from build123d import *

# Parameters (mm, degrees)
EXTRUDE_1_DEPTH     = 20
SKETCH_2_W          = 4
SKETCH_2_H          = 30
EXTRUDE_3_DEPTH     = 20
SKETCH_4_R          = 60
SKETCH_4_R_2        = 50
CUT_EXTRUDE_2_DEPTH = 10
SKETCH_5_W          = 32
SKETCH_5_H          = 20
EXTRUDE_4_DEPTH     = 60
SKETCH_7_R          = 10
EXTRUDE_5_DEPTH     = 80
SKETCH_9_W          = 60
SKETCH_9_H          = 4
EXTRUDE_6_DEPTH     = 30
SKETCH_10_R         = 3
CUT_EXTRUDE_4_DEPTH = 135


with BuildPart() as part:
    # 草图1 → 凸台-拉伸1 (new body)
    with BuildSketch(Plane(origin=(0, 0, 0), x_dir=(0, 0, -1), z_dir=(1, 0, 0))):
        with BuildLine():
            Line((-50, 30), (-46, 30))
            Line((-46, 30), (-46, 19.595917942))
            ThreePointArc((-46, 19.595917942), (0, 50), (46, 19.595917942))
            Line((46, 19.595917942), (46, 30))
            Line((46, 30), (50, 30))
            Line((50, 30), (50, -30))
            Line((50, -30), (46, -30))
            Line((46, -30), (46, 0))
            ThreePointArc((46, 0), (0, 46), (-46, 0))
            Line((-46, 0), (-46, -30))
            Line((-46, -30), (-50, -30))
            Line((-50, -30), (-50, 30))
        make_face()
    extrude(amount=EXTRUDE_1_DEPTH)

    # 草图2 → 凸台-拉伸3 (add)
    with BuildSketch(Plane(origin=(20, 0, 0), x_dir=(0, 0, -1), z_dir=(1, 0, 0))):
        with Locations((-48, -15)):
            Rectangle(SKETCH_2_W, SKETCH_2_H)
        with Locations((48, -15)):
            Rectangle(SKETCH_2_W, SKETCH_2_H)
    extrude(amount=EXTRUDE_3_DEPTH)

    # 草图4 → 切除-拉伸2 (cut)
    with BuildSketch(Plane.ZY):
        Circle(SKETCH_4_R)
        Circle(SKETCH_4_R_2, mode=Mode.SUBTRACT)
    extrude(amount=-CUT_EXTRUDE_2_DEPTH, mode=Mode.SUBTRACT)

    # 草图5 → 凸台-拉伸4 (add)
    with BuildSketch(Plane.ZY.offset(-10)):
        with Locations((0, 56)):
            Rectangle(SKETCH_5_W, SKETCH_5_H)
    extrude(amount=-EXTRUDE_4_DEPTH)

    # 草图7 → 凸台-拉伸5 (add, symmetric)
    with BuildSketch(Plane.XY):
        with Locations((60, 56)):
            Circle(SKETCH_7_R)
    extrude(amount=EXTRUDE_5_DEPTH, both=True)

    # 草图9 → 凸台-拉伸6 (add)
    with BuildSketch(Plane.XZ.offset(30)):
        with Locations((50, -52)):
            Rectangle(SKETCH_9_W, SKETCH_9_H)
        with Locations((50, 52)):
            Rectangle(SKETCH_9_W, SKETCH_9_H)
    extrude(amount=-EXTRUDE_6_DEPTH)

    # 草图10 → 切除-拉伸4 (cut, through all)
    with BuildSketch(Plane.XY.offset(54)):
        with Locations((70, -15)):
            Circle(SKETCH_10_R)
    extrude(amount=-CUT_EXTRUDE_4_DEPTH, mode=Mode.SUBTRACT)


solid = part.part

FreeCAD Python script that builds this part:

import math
import FreeCAD as App
import Part
import Sketcher

V = App.Vector
Q = App.Units.Quantity


def add_polygon(sketch, points):
    """Adds a closed chain of lines whose ends are joined by coincident constraints."""
    first, n = sketch.GeometryCount, len(points)
    for a, b in zip(points, points[1:] + points[:1]):
        sketch.addGeometry(Part.LineSegment(App.Vector(*a, 0), App.Vector(*b, 0)), False)
    for i in range(n):
        sketch.addConstraint(Sketcher.Constraint("Coincident", first + i, 2, first + (i + 1) % n, 1))

doc = App.newDocument("Part")
body = doc.addObject("PartDesign::Body", "Body")

# Sketch on YZ plane
sketch1 = body.newObject("Sketcher::SketchObject", "Sketch")
sketch1.AttachmentSupport = (doc.getObject("YZ_Plane"), [""])
sketch1.MapMode = "FlatFace"
sketch1.addGeometry(Part.LineSegment(V(30, 46, 0), V(30, 50, 0)), False)
sketch1.addGeometry(Part.LineSegment(V(30, 50, 0), V(-30, 50, 0)), False)
sketch1.addGeometry(Part.LineSegment(V(-30, 50, 0), V(-30, 46, 0)), False)
sketch1.addGeometry(Part.LineSegment(V(-30, 46, 0), V(0, 46, 0)), False)
sketch1.addGeometry(Part.ArcOfCircle(Part.Circle(V(0, 0, 0), V(0, 0, 1), 46), math.radians(-90), math.radians(90)), False)
sketch1.addGeometry(Part.LineSegment(V(0, -46, 0), V(-30, -46, 0)), False)
sketch1.addGeometry(Part.LineSegment(V(-30, -46, 0), V(-30, -50, 0)), False)
sketch1.addGeometry(Part.LineSegment(V(-30, -50, 0), V(30, -50, 0)), False)
sketch1.addGeometry(Part.LineSegment(V(30, -50, 0), V(30, -46, 0)), False)
sketch1.addGeometry(Part.LineSegment(V(30, -46, 0), V(19.6, -46, 0)), False)
sketch1.addGeometry(Part.ArcOfCircle(Part.Circle(V(0, 0, 0), V(0, 0, 1), 50), math.radians(-67), math.radians(67)), False)
sketch1.addGeometry(Part.LineSegment(V(19.6, 46, 0), V(30, 46, 0)), False)
sketch1.addConstraint(Sketcher.Constraint("Coincident", 0, 2, 1, 1))
sketch1.addConstraint(Sketcher.Constraint("Coincident", 1, 2, 2, 1))
sketch1.addConstraint(Sketcher.Constraint("Coincident", 2, 2, 3, 1))
sketch1.addConstraint(Sketcher.Constraint("Tangent", 3, 2, 4, 2))
sketch1.addConstraint(Sketcher.Constraint("Tangent", 4, 1, 5, 1))
sketch1.addConstraint(Sketcher.Constraint("Coincident", 5, 2, 6, 1))
sketch1.addConstraint(Sketcher.Constraint("Coincident", 6, 2, 7, 1))
sketch1.addConstraint(Sketcher.Constraint("Coincident", 7, 2, 8, 1))
sketch1.addConstraint(Sketcher.Constraint("Coincident", 8, 2, 9, 1))
sketch1.addConstraint(Sketcher.Constraint("Coincident", 9, 2, 10, 1))
sketch1.addConstraint(Sketcher.Constraint("Coincident", 10, 2, 11, 1))
sketch1.addConstraint(Sketcher.Constraint("Coincident", 11, 2, 0, 1))
sketch1.addConstraint(Sketcher.Constraint("Vertical", 0))
sketch1.addConstraint(Sketcher.Constraint("Horizontal", 1))
sketch1.addConstraint(Sketcher.Constraint("Vertical", 2))
sketch1.addConstraint(Sketcher.Constraint("Horizontal", 3))
sketch1.addConstraint(Sketcher.Constraint("Horizontal", 5))
sketch1.addConstraint(Sketcher.Constraint("Vertical", 6))
sketch1.addConstraint(Sketcher.Constraint("Horizontal", 7))
sketch1.addConstraint(Sketcher.Constraint("Vertical", 8))
sketch1.addConstraint(Sketcher.Constraint("Horizontal", 9))
sketch1.addConstraint(Sketcher.Constraint("Horizontal", 11))
sketch1.addConstraint(Sketcher.Constraint("Coincident", 4, 3, -1, 1))
sketch1.addConstraint(Sketcher.Constraint("Coincident", 10, 3, -1, 1))
sketch1.addConstraint(Sketcher.Constraint("Symmetric", 0, 2, 6, 2, -1, 1))
sketch1.addConstraint(Sketcher.Constraint("Symmetric", 2, 2, 8, 2, -1, 1))
sketch1.addConstraint(Sketcher.Constraint("Symmetric", 2, 2, 11, 2, -2))
sketch1.addConstraint(Sketcher.Constraint("Radius", 4, Q("46 mm")))
sketch1.addConstraint(Sketcher.Constraint("Radius", 10, Q("50 mm")))
sketch1.addConstraint(Sketcher.Constraint("DistanceX", 1, 2, 1, 1, Q("60 mm")))
sketch1.addConstraint(Sketcher.Constraint("DistanceY", 0, 1, 0, 2, Q("4 mm")))
pad1 = body.newObject("PartDesign::Pad", "Pad")
pad1.Profile = sketch1
pad1.Length = 20

# Sketch on YZ plane
sketch2 = body.newObject("Sketcher::SketchObject", "Sketch001")
sketch2.AttachmentSupport = (doc.getObject("YZ_Plane"), [""])
sketch2.MapMode = "FlatFace"
sketch2.AttachmentOffset = App.Placement(V(0, 0, 20), App.Rotation())
add_polygon(sketch2, [(0, 50), (-30, 50), (-30, 46), (0, 46)])  # lines 0-3
add_polygon(sketch2, [(0, -46), (-30, -46), (-30, -50), (0, -50)])  # lines 4-7
sketch2.addConstraint(Sketcher.Constraint("Horizontal", 0))
sketch2.addConstraint(Sketcher.Constraint("Vertical", 1))
sketch2.addConstraint(Sketcher.Constraint("Horizontal", 2))
sketch2.addConstraint(Sketcher.Constraint("Vertical", 3))
sketch2.addConstraint(Sketcher.Constraint("Horizontal", 4))
sketch2.addConstraint(Sketcher.Constraint("Vertical", 5))
sketch2.addConstraint(Sketcher.Constraint("Horizontal", 6))
sketch2.addConstraint(Sketcher.Constraint("Vertical", 7))
sketch2.addConstraint(Sketcher.Constraint("Symmetric", 3, 2, 6, 2, -1, 1))
sketch2.addConstraint(Sketcher.Constraint("Symmetric", 1, 2, 4, 2, -1))
sketch2.addConstraint(Sketcher.Constraint("PointOnObject", 2, 2, -2))
sketch2.addConstraint(Sketcher.Constraint("DistanceX", 0, 2, 0, 1, Q("30 mm")))
sketch2.addConstraint(Sketcher.Constraint("DistanceY", 1, 2, 1, 1, Q("4 mm")))
sketch2.addConstraint(Sketcher.Constraint("DistanceY", -1, 1, 0, 2, Q("50 mm")))
pad2 = body.newObject("PartDesign::Pad", "Pad001")
pad2.Profile = sketch2
pad2.Length = 20

# Sketch on YZ plane
sketch3 = body.newObject("Sketcher::SketchObject", "Sketch002")
sketch3.AttachmentSupport = (doc.getObject("YZ_Plane"), [""])
sketch3.MapMode = "FlatFace"
sketch3.addGeometry(Part.Circle(V(0, 0, 0), V(0, 0, 1), 60), False)
sketch3.addGeometry(Part.Circle(V(0, 0, 0), V(0, 0, 1), 50), False)
sketch3.addConstraint(Sketcher.Constraint("Coincident", 0, 3, -1, 1))
sketch3.addConstraint(Sketcher.Constraint("Coincident", 1, 3, -1, 1))
sketch3.addConstraint(Sketcher.Constraint("Diameter", 0, Q("120 mm")))
sketch3.addConstraint(Sketcher.Constraint("Diameter", 1, Q("100 mm")))
pocket1 = body.newObject("PartDesign::Pocket", "Pocket")
pocket1.Profile = sketch3
pocket1.Length = 10
pocket1.Reversed = True

# Sketch on YZ plane
sketch4 = body.newObject("Sketcher::SketchObject", "Sketch003")
sketch4.AttachmentSupport = (doc.getObject("YZ_Plane"), [""])
sketch4.MapMode = "FlatFace"
sketch4.AttachmentOffset = App.Placement(V(0, 0, 10), App.Rotation())
add_polygon(sketch4, [(66, -16), (46, -16), (46, 16), (66, 16)])  # lines 0-3
sketch4.addConstraint(Sketcher.Constraint("Horizontal", 0))
sketch4.addConstraint(Sketcher.Constraint("Vertical", 1))
sketch4.addConstraint(Sketcher.Constraint("Horizontal", 2))
sketch4.addConstraint(Sketcher.Constraint("Vertical", 3))
sketch4.addConstraint(Sketcher.Constraint("DistanceX", 0, 2, 0, 1, Q("20 mm")))
sketch4.addConstraint(Sketcher.Constraint("DistanceY", 1, 1, 1, 2, Q("32 mm")))
sketch4.addConstraint(Sketcher.Constraint("DistanceX", -1, 1, 0, 2, Q("46 mm")))
sketch4.addConstraint(Sketcher.Constraint("DistanceY", 0, 2, -1, 1, Q("16 mm")))
pad3 = body.newObject("PartDesign::Pad", "Pad002")
pad3.Profile = sketch4
pad3.Length = 60

# Sketch on XY plane
sketch5 = body.newObject("Sketcher::SketchObject", "Sketch004")
sketch5.AttachmentSupport = (doc.getObject("XY_Plane"), [""])
sketch5.MapMode = "FlatFace"
sketch5.addGeometry(Part.Circle(V(60, 56, 0), V(0, 0, 1), 10), False)
sketch5.addConstraint(Sketcher.Constraint("Diameter", 0, Q("20 mm")))
sketch5.addConstraint(Sketcher.Constraint("DistanceX", -1, 1, 0, 3, Q("60 mm")))
sketch5.addConstraint(Sketcher.Constraint("DistanceY", -1, 1, 0, 3, Q("56 mm")))
pad4 = body.newObject("PartDesign::Pad", "Pad003")
pad4.Profile = sketch5
pad4.Length = 160
pad4.Midplane = True

# Sketch on XZ plane
sketch6 = body.newObject("Sketcher::SketchObject", "Sketch005")
sketch6.AttachmentSupport = (doc.getObject("XZ_Plane"), [""])
sketch6.MapMode = "FlatFace"
sketch6.AttachmentOffset = App.Placement(V(0, 0, 30), App.Rotation())
add_polygon(sketch6, [(20, -50), (20, -54), (80, -54), (80, -50)])  # lines 0-3
add_polygon(sketch6, [(20, 54), (20, 50), (80, 50), (80, 54)])  # lines 4-7
sketch6.addConstraint(Sketcher.Constraint("Vertical", 0))
sketch6.addConstraint(Sketcher.Constraint("Horizontal", 1))
sketch6.addConstraint(Sketcher.Constraint("Vertical", 2))
sketch6.addConstraint(Sketcher.Constraint("Horizontal", 3))
sketch6.addConstraint(Sketcher.Constraint("Vertical", 4))
sketch6.addConstraint(Sketcher.Constraint("Horizontal", 5))
sketch6.addConstraint(Sketcher.Constraint("Vertical", 6))
sketch6.addConstraint(Sketcher.Constraint("Horizontal", 7))
sketch6.addConstraint(Sketcher.Constraint("Symmetric", 3, 2, 4, 2, -1))
sketch6.addConstraint(Sketcher.Constraint("Symmetric", 1, 2, 6, 2, -1))
sketch6.addConstraint(Sketcher.Constraint("DistanceX", 1, 1, 1, 2, Q("60 mm")))
sketch6.addConstraint(Sketcher.Constraint("DistanceY", 0, 2, 0, 1, Q("4 mm")))
sketch6.addConstraint(Sketcher.Constraint("DistanceX", -1, 1, 0, 2, Q("20 mm")))
sketch6.addConstraint(Sketcher.Constraint("DistanceY", 0, 2, -1, 1, Q("54 mm")))
pad5 = body.newObject("PartDesign::Pad", "Pad004")
pad5.Profile = sketch6
pad5.Length = 30
pad5.Reversed = True

# Sketch on XY plane
sketch7 = body.newObject("Sketcher::SketchObject", "Sketch006")
sketch7.AttachmentSupport = (doc.getObject("XY_Plane"), [""])
sketch7.MapMode = "FlatFace"
sketch7.AttachmentOffset = App.Placement(V(0, 0, 54), App.Rotation())
sketch7.addGeometry(Part.Circle(V(70, -15, 0), V(0, 0, 1), 3), False)
sketch7.addConstraint(Sketcher.Constraint("Diameter", 0, Q("6 mm")))
sketch7.addConstraint(Sketcher.Constraint("DistanceX", -1, 1, 0, 3, Q("70 mm")))
sketch7.addConstraint(Sketcher.Constraint("DistanceY", 0, 3, -1, 1, Q("15 mm")))
pocket2 = body.newObject("PartDesign::Pocket", "Pocket001")
pocket2.Profile = sketch7
pocket2.Type = "ThroughAll"

doc.recompute()
